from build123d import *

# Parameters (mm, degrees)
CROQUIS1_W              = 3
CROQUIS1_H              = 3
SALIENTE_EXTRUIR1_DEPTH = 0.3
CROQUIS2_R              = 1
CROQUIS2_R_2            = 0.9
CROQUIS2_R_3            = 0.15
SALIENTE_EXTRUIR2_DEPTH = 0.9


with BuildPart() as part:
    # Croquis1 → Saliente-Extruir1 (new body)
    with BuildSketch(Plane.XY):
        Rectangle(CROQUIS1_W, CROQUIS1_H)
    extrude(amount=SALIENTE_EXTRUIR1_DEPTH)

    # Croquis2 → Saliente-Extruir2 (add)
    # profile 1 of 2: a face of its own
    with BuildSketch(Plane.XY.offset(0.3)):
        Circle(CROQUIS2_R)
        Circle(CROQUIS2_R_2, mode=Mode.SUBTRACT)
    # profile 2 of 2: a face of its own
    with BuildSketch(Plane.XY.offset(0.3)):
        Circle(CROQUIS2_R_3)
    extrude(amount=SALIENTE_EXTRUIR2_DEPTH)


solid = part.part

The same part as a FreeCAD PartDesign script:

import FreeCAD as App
import Part
import Sketcher

V = App.Vector
Q = App.Units.Quantity


def add_polygon(sketch, points):
    """Adds a closed chain of lines whose ends are joined by coincident constraints."""
    first, n = sketch.GeometryCount, len(points)
    for a, b in zip(points, points[1:] + points[:1]):
        sketch.addGeometry(Part.LineSegment(App.Vector(*a, 0), App.Vector(*b, 0)), False)
    for i in range(n):
        sketch.addConstraint(Sketcher.Constraint("Coincident", first + i, 2, first + (i + 1) % n, 1))

doc = App.newDocument("Part")
params = doc.addObject("Spreadsheet::Sheet", "Params")
for row, (alias, value) in enumerate([
    ("sketch1_width", "3 mm"),
    ("pad1_length", "0.3 mm"),
    ("sketch2_diameter", "2 mm"),
    ("sketch2_diameter2", "1.8 mm"),
    ("sketch2_diameter3", "0.3 mm"),
    ("pad2_length", "0.9 mm"),
], start=1):
    params.set(f"A{row}", alias)
    params.set(f"B{row}", "=" + value)
    params.setAlias(f"B{row}", alias)

body = doc.addObject("PartDesign::Body", "Body")

# Sketch on XY plane
sketch1 = body.newObject("Sketcher::SketchObject", "Sketch")
sketch1.AttachmentSupport = (doc.getObject("XY_Plane"), [""])
sketch1.MapMode = "FlatFace"
add_polygon(sketch1, [(-1.5, 1.5), (-1.5, -1.5), (1.5, -1.5), (1.5, 1.5)])  # lines 0-3
sketch1.addConstraint(Sketcher.Constraint("Vertical", 0))
sketch1.addConstraint(Sketcher.Constraint("Horizontal", 1))
sketch1.addConstraint(Sketcher.Constraint("Vertical", 2))
sketch1.addConstraint(Sketcher.Constraint("Horizontal", 3))
sketch1.addConstraint(Sketcher.Constraint("Symmetric", 0, 2, 2, 2, -1, 1))
sketch1.addConstraint(Sketcher.Constraint("Equal", 3, 0))
sketch1.addConstraint(Sketcher.Constraint("DistanceX", 1, 1, 1, 2, Q("3 mm")))
sketch1.setExpression("Constraints[10]", "Params.sketch1_width")
pad1 = body.newObject("PartDesign::Pad", "Pad")
pad1.Profile = sketch1
pad1.setExpression("Length", "Params.pad1_length")

# Sketch on XY plane
sketch2 = body.newObject("Sketcher::SketchObject", "Sketch001")
sketch2.AttachmentSupport = (doc.getObject("XY_Plane"), [""])
sketch2.MapMode = "FlatFace"
sketch2.AttachmentOffset = App.Placement(V(0, 0, 0.3), App.Rotation())
sketch2.addGeometry(Part.Circle(V(0, 0, 0), V(0, 0, 1), 1), False)
sketch2.addGeometry(Part.Circle(V(0, 0, 0), V(0, 0, 1), 0.9), False)
sketch2.addGeometry(Part.Circle(V(0, 0, 0), V(0, 0, 1), 0.15), False)
sketch2.addConstraint(Sketcher.Constraint("Coincident", 0, 3, -1, 1))
sketch2.addConstraint(Sketcher.Constraint("Coincident", 1, 3, -1, 1))
sketch2.addConstraint(Sketcher.Constraint("Coincident", 2, 3, -1, 1))
sketch2.addConstraint(Sketcher.Constraint("Diameter", 0, Q("2 mm")))
sketch2.addConstraint(Sketcher.Constraint("Diameter", 1, Q("1.8 mm")))
sketch2.addConstraint(Sketcher.Constraint("Diameter", 2, Q("0.3 mm")))
sketch2.setExpression("Constraints[3]", "Params.sketch2_diameter")
sketch2.setExpression("Constraints[4]", "Params.sketch2_diameter2")
sketch2.setExpression("Constraints[5]", "Params.sketch2_diameter3")
pad2 = body.newObject("PartDesign::Pad", "Pad001")
pad2.Profile = sketch2
pad2.setExpression("Length", "Params.pad2_length")

doc.recompute()
